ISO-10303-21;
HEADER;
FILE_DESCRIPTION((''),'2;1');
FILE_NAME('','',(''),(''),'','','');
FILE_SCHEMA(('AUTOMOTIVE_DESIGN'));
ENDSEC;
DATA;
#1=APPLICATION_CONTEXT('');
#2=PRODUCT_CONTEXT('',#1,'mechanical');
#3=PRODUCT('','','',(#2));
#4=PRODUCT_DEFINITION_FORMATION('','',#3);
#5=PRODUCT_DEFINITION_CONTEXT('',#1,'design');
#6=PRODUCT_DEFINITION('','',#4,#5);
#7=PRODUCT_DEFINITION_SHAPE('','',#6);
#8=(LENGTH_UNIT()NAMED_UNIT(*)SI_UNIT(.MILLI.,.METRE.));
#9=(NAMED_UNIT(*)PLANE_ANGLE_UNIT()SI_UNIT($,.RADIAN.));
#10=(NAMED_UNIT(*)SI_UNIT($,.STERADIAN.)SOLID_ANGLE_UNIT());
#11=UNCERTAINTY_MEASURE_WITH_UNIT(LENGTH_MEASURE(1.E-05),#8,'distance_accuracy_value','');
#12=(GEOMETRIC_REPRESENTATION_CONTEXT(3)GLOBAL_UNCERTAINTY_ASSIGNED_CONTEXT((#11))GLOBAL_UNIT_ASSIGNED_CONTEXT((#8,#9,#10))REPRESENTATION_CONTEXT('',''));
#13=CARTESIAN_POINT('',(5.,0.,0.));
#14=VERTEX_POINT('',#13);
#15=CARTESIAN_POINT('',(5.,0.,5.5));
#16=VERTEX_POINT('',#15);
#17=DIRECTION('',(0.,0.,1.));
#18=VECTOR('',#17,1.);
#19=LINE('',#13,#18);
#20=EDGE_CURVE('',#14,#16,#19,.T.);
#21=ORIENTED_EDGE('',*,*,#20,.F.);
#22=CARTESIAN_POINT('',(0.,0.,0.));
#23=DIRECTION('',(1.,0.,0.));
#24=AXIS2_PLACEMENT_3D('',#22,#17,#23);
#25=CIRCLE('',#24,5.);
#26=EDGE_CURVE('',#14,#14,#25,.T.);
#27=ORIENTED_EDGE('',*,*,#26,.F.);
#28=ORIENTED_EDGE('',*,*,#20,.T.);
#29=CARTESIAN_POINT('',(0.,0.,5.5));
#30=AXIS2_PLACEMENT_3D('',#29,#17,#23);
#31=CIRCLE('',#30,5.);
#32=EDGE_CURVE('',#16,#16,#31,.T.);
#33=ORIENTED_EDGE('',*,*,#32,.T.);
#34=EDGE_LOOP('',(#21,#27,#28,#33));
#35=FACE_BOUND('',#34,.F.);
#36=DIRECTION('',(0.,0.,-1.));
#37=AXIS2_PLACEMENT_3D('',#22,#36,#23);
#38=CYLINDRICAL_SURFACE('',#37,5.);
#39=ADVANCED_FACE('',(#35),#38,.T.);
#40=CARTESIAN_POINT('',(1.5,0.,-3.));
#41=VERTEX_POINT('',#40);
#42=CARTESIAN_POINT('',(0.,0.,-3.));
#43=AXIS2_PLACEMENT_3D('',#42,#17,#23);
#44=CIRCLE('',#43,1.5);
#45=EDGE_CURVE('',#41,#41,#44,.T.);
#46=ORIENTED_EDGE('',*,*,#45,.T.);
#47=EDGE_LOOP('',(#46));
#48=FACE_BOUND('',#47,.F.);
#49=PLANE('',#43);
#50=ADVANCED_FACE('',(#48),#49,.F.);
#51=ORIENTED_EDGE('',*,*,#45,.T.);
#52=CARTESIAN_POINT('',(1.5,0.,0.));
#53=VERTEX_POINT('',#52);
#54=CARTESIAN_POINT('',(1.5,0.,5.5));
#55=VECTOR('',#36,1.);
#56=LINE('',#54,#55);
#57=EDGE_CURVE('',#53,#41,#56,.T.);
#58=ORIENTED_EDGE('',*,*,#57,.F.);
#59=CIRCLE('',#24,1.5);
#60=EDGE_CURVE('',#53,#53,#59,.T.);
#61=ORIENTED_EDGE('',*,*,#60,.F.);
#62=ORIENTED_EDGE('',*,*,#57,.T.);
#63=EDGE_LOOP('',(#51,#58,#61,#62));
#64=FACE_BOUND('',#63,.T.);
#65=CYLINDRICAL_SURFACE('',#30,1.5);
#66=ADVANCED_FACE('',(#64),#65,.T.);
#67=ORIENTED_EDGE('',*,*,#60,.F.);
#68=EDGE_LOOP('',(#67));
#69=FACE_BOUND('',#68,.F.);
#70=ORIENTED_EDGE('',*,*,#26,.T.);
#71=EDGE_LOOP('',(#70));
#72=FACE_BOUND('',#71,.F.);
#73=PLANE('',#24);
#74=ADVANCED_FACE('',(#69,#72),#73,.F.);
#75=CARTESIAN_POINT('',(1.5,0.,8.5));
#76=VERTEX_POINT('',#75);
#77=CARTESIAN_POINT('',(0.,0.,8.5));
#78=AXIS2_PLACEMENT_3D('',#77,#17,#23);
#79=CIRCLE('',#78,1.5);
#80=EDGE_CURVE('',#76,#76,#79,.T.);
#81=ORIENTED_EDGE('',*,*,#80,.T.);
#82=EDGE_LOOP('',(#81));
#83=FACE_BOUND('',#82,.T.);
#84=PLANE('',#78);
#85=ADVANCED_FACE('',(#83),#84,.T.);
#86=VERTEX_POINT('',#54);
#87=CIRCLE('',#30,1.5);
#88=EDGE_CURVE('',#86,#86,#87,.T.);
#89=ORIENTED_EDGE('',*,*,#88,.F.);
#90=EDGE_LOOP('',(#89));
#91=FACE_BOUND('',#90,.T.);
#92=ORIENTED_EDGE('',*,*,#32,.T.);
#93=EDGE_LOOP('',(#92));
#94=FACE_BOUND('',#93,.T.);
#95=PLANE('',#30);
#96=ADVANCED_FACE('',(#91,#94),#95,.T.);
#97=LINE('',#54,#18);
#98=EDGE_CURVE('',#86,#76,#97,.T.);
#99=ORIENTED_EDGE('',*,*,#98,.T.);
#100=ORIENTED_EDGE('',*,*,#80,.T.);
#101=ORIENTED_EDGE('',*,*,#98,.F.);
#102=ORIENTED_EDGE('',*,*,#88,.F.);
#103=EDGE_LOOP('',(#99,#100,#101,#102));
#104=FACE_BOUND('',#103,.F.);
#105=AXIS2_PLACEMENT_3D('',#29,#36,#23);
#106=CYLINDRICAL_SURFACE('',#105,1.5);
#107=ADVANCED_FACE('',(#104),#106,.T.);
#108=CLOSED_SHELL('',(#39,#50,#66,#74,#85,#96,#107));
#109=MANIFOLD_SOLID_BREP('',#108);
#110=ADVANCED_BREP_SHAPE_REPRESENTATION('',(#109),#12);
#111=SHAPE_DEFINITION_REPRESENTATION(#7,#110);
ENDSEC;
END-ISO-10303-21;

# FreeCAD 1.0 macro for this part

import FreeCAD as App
import Part
import Sketcher

doc = App.newDocument("Part")
body = doc.addObject("PartDesign::Body", "Body")

sketch1 = body.newObject("Sketcher::SketchObject", "Sketch")
sketch1.AttachmentSupport = (doc.getObject("XY_Plane"), [""])
sketch1.MapMode = "FlatFace"
sketch1.addGeometry(Part.Circle(App.Vector(0, 0, 0), App.Vector(0, 0, 1), 5), False)
sketch1.addConstraint([
    Sketcher.Constraint("Coincident", 0, 3, -1, 1),
    Sketcher.Constraint("Diameter", 0, 10.0),
])
pad1 = body.newObject("PartDesign::Pad", "Pad")
pad1.Profile = sketch1
pad1.Length = 5.5

sketch2 = body.newObject("Sketcher::SketchObject", "Sketch001")
sketch2.AttachmentSupport = (doc.getObject("XY_Plane"), [""])
sketch2.MapMode = "FlatFace"
sketch2.AttachmentOffset = App.Placement(App.Vector(0, 0, 5.5), App.Rotation())
sketch2.addGeometry(Part.Circle(App.Vector(0, 0, 0), App.Vector(0, 0, 1), 1.5), False)
sketch2.addConstraint([
    Sketcher.Constraint("Coincident", 0, 3, -1, 1),
    Sketcher.Constraint("Diameter", 0, 3.0),
])
pad2 = body.newObject("PartDesign::Pad", "Pad001")
pad2.Profile = sketch2
pad2.Type = "TwoLengths"
pad2.Length = 3
pad2.Length2 = 8.5

doc.recompute()
